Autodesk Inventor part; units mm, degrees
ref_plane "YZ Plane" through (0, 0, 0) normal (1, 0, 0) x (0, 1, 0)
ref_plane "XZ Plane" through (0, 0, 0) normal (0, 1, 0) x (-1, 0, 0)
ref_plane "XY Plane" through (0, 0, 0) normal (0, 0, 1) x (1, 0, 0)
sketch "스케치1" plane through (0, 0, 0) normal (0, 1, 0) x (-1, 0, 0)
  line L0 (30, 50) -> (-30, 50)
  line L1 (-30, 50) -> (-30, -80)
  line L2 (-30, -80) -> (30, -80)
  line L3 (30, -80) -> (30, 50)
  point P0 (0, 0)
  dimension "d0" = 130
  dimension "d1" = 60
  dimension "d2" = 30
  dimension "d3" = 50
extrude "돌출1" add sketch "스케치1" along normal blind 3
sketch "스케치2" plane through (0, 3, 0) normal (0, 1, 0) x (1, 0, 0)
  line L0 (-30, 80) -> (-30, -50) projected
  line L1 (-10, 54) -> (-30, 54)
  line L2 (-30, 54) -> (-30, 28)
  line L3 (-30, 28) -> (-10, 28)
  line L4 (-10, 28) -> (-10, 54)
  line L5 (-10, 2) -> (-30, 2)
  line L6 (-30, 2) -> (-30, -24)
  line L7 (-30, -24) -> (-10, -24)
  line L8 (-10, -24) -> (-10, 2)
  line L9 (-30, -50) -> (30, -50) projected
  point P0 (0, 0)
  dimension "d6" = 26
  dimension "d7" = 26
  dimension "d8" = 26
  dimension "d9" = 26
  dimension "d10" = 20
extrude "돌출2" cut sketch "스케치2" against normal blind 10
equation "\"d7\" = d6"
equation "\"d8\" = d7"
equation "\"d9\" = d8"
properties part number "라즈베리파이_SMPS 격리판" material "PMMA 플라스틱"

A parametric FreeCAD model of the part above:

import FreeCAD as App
import Part
import Sketcher
from FreeCAD import Vector
Q = App.Units.Quantity


def add_polygon(sketch, points):
    """Adds a closed chain of lines whose ends are joined by coincident constraints."""
    first, n = sketch.GeometryCount, len(points)
    for a, b in zip(points, points[1:] + points[:1]):
        sketch.addGeometry(Part.LineSegment(App.Vector(*a, 0), App.Vector(*b, 0)), False)
    for i in range(n):
        sketch.addConstraint(Sketcher.Constraint("Coincident", first + i, 2, first + (i + 1) % n, 1))

doc = App.newDocument("Part")
params = doc.addObject("Spreadsheet::Sheet", "Params")
for row, (alias, value) in enumerate([
    ("sketch1_width", "60 mm"),
    ("sketch1_height", "130 mm"),
    ("pad1_length", "3 mm"),
    ("sketch2_width", "20 mm"),
    ("sketch2_height", "26 mm"),
    ("pocket1_length", "10 mm"),
], start=1):
    params.set(f"A{row}", alias)
    params.set(f"B{row}", "=" + value)
    params.setAlias(f"B{row}", alias)

body = doc.addObject("PartDesign::Body", "Body")

# Sketch on XZ plane
sketch1 = body.newObject("Sketcher::SketchObject", "Sketch")
sketch1.AttachmentSupport = (doc.getObject("XZ_Plane"), [""])
sketch1.MapMode = "FlatFace"
add_polygon(sketch1, [(-30, -80), (-30, 50), (30, 50), (30, -80)])  # lines 0-3
sketch1.addConstraint(Sketcher.Constraint("Vertical", 0))
sketch1.addConstraint(Sketcher.Constraint("Horizontal", 1))
sketch1.addConstraint(Sketcher.Constraint("Vertical", 2))
sketch1.addConstraint(Sketcher.Constraint("Horizontal", 3))
sketch1.addConstraint(Sketcher.Constraint("DistanceX", 1, 1, 1, 2, Q("60 mm")))
sketch1.addConstraint(Sketcher.Constraint("DistanceY", 0, 1, 0, 2, Q("130 mm")))
sketch1.addConstraint(Sketcher.Constraint("DistanceX", 0, 2, -1, 1, Q("30 mm")))
sketch1.addConstraint(Sketcher.Constraint("DistanceY", -1, 1, 0, 2, Q("50 mm")))
sketch1.setExpression("Constraints[8]", "Params.sketch1_width")
sketch1.setExpression("Constraints[9]", "Params.sketch1_height")
pad1 = body.newObject("PartDesign::Pad", "Pad")
pad1.Profile = sketch1
pad1.setExpression("Length", "Params.pad1_length")
pad1.Reversed = True

# Sketch on XZ plane
sketch2 = body.newObject("Sketcher::SketchObject", "Sketch001")
sketch2.AttachmentSupport = (doc.getObject("XZ_Plane"), [""])
sketch2.MapMode = "FlatFace"
sketch2.AttachmentOffset = App.Placement(Vector(0, 0, -3), App.Rotation())
add_polygon(sketch2, [(-10, -54), (-30, -54), (-30, -28), (-10, -28)])  # lines 0-3
add_polygon(sketch2, [(-10, -2), (-30, -2), (-30, 24), (-10, 24)])  # lines 4-7
sketch2.addConstraint(Sketcher.Constraint("Horizontal", 0))
sketch2.addConstraint(Sketcher.Constraint("Vertical", 1))
sketch2.addConstraint(Sketcher.Constraint("Horizontal", 2))
sketch2.addConstraint(Sketcher.Constraint("Vertical", 3))
sketch2.addConstraint(Sketcher.Constraint("Horizontal", 4))
sketch2.addConstraint(Sketcher.Constraint("Vertical", 5))
sketch2.addConstraint(Sketcher.Constraint("Horizontal", 6))
sketch2.addConstraint(Sketcher.Constraint("Vertical", 7))
sketch2.addConstraint(Sketcher.Constraint("Vertical", 1, 2, 4, 2))
sketch2.addConstraint(Sketcher.Constraint("Vertical", 3, 2, 6, 2))
sketch2.addConstraint(Sketcher.Constraint("Equal", 3, 5))
sketch2.addConstraint(Sketcher.Constraint("DistanceX", 0, 2, 0, 1, Q("20 mm")))
sketch2.addConstraint(Sketcher.Constraint("DistanceY", 1, 1, 1, 2, Q("26 mm")))
sketch2.addConstraint(Sketcher.Constraint("DistanceY", 1, 2, 4, 2, Q("26 mm")))
sketch2.addConstraint(Sketcher.Constraint("DistanceX", 0, 2, -1, 1, Q("30 mm")))
sketch2.addConstraint(Sketcher.Constraint("DistanceY", 0, 2, -1, 1, Q("54 mm")))
sketch2.setExpression("Constraints[19]", "Params.sketch2_width")
sketch2.setExpression("Constraints[20]", "Params.sketch2_height")
pocket1 = body.newObject("PartDesign::Pocket", "Pocket")
pocket1.Profile = sketch2
pocket1.setExpression("Length", "Params.pocket1_length")
pocket1.Reversed = True

doc.recompute()
